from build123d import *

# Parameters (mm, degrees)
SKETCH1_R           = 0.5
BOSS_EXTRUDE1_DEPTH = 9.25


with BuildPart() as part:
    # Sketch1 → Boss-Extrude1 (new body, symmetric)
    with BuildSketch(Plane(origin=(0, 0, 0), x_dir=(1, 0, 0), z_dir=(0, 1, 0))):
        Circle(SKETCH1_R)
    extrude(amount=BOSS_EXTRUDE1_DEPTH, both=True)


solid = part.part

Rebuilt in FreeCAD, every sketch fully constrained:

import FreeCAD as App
import Part
import Sketcher
from FreeCAD import Vector
Q = App.Units.Quantity

doc = App.newDocument("Part")
body = doc.addObject("PartDesign::Body", "Body")

sketch1 = body.newObject("Sketcher::SketchObject", "Sketch")
sketch1.AttachmentSupport = (doc.getObject("XZ_Plane"), [""])
sketch1.MapMode = "FlatFace"
sketch1.addGeometry(Part.Circle(Vector(0, 0, 0), Vector(0, 0, 1), 0.5), False)
sketch1.addConstraint(Sketcher.Constraint("Coincident", 0, 3, -1, 1))
sketch1.addConstraint(Sketcher.Constraint("Diameter", 0, Q("1 mm")))
pad1 = body.newObject("PartDesign::Pad", "Pad")
pad1.Profile = sketch1
pad1.Length = 18.5
pad1.Midplane = True

doc.recompute()
